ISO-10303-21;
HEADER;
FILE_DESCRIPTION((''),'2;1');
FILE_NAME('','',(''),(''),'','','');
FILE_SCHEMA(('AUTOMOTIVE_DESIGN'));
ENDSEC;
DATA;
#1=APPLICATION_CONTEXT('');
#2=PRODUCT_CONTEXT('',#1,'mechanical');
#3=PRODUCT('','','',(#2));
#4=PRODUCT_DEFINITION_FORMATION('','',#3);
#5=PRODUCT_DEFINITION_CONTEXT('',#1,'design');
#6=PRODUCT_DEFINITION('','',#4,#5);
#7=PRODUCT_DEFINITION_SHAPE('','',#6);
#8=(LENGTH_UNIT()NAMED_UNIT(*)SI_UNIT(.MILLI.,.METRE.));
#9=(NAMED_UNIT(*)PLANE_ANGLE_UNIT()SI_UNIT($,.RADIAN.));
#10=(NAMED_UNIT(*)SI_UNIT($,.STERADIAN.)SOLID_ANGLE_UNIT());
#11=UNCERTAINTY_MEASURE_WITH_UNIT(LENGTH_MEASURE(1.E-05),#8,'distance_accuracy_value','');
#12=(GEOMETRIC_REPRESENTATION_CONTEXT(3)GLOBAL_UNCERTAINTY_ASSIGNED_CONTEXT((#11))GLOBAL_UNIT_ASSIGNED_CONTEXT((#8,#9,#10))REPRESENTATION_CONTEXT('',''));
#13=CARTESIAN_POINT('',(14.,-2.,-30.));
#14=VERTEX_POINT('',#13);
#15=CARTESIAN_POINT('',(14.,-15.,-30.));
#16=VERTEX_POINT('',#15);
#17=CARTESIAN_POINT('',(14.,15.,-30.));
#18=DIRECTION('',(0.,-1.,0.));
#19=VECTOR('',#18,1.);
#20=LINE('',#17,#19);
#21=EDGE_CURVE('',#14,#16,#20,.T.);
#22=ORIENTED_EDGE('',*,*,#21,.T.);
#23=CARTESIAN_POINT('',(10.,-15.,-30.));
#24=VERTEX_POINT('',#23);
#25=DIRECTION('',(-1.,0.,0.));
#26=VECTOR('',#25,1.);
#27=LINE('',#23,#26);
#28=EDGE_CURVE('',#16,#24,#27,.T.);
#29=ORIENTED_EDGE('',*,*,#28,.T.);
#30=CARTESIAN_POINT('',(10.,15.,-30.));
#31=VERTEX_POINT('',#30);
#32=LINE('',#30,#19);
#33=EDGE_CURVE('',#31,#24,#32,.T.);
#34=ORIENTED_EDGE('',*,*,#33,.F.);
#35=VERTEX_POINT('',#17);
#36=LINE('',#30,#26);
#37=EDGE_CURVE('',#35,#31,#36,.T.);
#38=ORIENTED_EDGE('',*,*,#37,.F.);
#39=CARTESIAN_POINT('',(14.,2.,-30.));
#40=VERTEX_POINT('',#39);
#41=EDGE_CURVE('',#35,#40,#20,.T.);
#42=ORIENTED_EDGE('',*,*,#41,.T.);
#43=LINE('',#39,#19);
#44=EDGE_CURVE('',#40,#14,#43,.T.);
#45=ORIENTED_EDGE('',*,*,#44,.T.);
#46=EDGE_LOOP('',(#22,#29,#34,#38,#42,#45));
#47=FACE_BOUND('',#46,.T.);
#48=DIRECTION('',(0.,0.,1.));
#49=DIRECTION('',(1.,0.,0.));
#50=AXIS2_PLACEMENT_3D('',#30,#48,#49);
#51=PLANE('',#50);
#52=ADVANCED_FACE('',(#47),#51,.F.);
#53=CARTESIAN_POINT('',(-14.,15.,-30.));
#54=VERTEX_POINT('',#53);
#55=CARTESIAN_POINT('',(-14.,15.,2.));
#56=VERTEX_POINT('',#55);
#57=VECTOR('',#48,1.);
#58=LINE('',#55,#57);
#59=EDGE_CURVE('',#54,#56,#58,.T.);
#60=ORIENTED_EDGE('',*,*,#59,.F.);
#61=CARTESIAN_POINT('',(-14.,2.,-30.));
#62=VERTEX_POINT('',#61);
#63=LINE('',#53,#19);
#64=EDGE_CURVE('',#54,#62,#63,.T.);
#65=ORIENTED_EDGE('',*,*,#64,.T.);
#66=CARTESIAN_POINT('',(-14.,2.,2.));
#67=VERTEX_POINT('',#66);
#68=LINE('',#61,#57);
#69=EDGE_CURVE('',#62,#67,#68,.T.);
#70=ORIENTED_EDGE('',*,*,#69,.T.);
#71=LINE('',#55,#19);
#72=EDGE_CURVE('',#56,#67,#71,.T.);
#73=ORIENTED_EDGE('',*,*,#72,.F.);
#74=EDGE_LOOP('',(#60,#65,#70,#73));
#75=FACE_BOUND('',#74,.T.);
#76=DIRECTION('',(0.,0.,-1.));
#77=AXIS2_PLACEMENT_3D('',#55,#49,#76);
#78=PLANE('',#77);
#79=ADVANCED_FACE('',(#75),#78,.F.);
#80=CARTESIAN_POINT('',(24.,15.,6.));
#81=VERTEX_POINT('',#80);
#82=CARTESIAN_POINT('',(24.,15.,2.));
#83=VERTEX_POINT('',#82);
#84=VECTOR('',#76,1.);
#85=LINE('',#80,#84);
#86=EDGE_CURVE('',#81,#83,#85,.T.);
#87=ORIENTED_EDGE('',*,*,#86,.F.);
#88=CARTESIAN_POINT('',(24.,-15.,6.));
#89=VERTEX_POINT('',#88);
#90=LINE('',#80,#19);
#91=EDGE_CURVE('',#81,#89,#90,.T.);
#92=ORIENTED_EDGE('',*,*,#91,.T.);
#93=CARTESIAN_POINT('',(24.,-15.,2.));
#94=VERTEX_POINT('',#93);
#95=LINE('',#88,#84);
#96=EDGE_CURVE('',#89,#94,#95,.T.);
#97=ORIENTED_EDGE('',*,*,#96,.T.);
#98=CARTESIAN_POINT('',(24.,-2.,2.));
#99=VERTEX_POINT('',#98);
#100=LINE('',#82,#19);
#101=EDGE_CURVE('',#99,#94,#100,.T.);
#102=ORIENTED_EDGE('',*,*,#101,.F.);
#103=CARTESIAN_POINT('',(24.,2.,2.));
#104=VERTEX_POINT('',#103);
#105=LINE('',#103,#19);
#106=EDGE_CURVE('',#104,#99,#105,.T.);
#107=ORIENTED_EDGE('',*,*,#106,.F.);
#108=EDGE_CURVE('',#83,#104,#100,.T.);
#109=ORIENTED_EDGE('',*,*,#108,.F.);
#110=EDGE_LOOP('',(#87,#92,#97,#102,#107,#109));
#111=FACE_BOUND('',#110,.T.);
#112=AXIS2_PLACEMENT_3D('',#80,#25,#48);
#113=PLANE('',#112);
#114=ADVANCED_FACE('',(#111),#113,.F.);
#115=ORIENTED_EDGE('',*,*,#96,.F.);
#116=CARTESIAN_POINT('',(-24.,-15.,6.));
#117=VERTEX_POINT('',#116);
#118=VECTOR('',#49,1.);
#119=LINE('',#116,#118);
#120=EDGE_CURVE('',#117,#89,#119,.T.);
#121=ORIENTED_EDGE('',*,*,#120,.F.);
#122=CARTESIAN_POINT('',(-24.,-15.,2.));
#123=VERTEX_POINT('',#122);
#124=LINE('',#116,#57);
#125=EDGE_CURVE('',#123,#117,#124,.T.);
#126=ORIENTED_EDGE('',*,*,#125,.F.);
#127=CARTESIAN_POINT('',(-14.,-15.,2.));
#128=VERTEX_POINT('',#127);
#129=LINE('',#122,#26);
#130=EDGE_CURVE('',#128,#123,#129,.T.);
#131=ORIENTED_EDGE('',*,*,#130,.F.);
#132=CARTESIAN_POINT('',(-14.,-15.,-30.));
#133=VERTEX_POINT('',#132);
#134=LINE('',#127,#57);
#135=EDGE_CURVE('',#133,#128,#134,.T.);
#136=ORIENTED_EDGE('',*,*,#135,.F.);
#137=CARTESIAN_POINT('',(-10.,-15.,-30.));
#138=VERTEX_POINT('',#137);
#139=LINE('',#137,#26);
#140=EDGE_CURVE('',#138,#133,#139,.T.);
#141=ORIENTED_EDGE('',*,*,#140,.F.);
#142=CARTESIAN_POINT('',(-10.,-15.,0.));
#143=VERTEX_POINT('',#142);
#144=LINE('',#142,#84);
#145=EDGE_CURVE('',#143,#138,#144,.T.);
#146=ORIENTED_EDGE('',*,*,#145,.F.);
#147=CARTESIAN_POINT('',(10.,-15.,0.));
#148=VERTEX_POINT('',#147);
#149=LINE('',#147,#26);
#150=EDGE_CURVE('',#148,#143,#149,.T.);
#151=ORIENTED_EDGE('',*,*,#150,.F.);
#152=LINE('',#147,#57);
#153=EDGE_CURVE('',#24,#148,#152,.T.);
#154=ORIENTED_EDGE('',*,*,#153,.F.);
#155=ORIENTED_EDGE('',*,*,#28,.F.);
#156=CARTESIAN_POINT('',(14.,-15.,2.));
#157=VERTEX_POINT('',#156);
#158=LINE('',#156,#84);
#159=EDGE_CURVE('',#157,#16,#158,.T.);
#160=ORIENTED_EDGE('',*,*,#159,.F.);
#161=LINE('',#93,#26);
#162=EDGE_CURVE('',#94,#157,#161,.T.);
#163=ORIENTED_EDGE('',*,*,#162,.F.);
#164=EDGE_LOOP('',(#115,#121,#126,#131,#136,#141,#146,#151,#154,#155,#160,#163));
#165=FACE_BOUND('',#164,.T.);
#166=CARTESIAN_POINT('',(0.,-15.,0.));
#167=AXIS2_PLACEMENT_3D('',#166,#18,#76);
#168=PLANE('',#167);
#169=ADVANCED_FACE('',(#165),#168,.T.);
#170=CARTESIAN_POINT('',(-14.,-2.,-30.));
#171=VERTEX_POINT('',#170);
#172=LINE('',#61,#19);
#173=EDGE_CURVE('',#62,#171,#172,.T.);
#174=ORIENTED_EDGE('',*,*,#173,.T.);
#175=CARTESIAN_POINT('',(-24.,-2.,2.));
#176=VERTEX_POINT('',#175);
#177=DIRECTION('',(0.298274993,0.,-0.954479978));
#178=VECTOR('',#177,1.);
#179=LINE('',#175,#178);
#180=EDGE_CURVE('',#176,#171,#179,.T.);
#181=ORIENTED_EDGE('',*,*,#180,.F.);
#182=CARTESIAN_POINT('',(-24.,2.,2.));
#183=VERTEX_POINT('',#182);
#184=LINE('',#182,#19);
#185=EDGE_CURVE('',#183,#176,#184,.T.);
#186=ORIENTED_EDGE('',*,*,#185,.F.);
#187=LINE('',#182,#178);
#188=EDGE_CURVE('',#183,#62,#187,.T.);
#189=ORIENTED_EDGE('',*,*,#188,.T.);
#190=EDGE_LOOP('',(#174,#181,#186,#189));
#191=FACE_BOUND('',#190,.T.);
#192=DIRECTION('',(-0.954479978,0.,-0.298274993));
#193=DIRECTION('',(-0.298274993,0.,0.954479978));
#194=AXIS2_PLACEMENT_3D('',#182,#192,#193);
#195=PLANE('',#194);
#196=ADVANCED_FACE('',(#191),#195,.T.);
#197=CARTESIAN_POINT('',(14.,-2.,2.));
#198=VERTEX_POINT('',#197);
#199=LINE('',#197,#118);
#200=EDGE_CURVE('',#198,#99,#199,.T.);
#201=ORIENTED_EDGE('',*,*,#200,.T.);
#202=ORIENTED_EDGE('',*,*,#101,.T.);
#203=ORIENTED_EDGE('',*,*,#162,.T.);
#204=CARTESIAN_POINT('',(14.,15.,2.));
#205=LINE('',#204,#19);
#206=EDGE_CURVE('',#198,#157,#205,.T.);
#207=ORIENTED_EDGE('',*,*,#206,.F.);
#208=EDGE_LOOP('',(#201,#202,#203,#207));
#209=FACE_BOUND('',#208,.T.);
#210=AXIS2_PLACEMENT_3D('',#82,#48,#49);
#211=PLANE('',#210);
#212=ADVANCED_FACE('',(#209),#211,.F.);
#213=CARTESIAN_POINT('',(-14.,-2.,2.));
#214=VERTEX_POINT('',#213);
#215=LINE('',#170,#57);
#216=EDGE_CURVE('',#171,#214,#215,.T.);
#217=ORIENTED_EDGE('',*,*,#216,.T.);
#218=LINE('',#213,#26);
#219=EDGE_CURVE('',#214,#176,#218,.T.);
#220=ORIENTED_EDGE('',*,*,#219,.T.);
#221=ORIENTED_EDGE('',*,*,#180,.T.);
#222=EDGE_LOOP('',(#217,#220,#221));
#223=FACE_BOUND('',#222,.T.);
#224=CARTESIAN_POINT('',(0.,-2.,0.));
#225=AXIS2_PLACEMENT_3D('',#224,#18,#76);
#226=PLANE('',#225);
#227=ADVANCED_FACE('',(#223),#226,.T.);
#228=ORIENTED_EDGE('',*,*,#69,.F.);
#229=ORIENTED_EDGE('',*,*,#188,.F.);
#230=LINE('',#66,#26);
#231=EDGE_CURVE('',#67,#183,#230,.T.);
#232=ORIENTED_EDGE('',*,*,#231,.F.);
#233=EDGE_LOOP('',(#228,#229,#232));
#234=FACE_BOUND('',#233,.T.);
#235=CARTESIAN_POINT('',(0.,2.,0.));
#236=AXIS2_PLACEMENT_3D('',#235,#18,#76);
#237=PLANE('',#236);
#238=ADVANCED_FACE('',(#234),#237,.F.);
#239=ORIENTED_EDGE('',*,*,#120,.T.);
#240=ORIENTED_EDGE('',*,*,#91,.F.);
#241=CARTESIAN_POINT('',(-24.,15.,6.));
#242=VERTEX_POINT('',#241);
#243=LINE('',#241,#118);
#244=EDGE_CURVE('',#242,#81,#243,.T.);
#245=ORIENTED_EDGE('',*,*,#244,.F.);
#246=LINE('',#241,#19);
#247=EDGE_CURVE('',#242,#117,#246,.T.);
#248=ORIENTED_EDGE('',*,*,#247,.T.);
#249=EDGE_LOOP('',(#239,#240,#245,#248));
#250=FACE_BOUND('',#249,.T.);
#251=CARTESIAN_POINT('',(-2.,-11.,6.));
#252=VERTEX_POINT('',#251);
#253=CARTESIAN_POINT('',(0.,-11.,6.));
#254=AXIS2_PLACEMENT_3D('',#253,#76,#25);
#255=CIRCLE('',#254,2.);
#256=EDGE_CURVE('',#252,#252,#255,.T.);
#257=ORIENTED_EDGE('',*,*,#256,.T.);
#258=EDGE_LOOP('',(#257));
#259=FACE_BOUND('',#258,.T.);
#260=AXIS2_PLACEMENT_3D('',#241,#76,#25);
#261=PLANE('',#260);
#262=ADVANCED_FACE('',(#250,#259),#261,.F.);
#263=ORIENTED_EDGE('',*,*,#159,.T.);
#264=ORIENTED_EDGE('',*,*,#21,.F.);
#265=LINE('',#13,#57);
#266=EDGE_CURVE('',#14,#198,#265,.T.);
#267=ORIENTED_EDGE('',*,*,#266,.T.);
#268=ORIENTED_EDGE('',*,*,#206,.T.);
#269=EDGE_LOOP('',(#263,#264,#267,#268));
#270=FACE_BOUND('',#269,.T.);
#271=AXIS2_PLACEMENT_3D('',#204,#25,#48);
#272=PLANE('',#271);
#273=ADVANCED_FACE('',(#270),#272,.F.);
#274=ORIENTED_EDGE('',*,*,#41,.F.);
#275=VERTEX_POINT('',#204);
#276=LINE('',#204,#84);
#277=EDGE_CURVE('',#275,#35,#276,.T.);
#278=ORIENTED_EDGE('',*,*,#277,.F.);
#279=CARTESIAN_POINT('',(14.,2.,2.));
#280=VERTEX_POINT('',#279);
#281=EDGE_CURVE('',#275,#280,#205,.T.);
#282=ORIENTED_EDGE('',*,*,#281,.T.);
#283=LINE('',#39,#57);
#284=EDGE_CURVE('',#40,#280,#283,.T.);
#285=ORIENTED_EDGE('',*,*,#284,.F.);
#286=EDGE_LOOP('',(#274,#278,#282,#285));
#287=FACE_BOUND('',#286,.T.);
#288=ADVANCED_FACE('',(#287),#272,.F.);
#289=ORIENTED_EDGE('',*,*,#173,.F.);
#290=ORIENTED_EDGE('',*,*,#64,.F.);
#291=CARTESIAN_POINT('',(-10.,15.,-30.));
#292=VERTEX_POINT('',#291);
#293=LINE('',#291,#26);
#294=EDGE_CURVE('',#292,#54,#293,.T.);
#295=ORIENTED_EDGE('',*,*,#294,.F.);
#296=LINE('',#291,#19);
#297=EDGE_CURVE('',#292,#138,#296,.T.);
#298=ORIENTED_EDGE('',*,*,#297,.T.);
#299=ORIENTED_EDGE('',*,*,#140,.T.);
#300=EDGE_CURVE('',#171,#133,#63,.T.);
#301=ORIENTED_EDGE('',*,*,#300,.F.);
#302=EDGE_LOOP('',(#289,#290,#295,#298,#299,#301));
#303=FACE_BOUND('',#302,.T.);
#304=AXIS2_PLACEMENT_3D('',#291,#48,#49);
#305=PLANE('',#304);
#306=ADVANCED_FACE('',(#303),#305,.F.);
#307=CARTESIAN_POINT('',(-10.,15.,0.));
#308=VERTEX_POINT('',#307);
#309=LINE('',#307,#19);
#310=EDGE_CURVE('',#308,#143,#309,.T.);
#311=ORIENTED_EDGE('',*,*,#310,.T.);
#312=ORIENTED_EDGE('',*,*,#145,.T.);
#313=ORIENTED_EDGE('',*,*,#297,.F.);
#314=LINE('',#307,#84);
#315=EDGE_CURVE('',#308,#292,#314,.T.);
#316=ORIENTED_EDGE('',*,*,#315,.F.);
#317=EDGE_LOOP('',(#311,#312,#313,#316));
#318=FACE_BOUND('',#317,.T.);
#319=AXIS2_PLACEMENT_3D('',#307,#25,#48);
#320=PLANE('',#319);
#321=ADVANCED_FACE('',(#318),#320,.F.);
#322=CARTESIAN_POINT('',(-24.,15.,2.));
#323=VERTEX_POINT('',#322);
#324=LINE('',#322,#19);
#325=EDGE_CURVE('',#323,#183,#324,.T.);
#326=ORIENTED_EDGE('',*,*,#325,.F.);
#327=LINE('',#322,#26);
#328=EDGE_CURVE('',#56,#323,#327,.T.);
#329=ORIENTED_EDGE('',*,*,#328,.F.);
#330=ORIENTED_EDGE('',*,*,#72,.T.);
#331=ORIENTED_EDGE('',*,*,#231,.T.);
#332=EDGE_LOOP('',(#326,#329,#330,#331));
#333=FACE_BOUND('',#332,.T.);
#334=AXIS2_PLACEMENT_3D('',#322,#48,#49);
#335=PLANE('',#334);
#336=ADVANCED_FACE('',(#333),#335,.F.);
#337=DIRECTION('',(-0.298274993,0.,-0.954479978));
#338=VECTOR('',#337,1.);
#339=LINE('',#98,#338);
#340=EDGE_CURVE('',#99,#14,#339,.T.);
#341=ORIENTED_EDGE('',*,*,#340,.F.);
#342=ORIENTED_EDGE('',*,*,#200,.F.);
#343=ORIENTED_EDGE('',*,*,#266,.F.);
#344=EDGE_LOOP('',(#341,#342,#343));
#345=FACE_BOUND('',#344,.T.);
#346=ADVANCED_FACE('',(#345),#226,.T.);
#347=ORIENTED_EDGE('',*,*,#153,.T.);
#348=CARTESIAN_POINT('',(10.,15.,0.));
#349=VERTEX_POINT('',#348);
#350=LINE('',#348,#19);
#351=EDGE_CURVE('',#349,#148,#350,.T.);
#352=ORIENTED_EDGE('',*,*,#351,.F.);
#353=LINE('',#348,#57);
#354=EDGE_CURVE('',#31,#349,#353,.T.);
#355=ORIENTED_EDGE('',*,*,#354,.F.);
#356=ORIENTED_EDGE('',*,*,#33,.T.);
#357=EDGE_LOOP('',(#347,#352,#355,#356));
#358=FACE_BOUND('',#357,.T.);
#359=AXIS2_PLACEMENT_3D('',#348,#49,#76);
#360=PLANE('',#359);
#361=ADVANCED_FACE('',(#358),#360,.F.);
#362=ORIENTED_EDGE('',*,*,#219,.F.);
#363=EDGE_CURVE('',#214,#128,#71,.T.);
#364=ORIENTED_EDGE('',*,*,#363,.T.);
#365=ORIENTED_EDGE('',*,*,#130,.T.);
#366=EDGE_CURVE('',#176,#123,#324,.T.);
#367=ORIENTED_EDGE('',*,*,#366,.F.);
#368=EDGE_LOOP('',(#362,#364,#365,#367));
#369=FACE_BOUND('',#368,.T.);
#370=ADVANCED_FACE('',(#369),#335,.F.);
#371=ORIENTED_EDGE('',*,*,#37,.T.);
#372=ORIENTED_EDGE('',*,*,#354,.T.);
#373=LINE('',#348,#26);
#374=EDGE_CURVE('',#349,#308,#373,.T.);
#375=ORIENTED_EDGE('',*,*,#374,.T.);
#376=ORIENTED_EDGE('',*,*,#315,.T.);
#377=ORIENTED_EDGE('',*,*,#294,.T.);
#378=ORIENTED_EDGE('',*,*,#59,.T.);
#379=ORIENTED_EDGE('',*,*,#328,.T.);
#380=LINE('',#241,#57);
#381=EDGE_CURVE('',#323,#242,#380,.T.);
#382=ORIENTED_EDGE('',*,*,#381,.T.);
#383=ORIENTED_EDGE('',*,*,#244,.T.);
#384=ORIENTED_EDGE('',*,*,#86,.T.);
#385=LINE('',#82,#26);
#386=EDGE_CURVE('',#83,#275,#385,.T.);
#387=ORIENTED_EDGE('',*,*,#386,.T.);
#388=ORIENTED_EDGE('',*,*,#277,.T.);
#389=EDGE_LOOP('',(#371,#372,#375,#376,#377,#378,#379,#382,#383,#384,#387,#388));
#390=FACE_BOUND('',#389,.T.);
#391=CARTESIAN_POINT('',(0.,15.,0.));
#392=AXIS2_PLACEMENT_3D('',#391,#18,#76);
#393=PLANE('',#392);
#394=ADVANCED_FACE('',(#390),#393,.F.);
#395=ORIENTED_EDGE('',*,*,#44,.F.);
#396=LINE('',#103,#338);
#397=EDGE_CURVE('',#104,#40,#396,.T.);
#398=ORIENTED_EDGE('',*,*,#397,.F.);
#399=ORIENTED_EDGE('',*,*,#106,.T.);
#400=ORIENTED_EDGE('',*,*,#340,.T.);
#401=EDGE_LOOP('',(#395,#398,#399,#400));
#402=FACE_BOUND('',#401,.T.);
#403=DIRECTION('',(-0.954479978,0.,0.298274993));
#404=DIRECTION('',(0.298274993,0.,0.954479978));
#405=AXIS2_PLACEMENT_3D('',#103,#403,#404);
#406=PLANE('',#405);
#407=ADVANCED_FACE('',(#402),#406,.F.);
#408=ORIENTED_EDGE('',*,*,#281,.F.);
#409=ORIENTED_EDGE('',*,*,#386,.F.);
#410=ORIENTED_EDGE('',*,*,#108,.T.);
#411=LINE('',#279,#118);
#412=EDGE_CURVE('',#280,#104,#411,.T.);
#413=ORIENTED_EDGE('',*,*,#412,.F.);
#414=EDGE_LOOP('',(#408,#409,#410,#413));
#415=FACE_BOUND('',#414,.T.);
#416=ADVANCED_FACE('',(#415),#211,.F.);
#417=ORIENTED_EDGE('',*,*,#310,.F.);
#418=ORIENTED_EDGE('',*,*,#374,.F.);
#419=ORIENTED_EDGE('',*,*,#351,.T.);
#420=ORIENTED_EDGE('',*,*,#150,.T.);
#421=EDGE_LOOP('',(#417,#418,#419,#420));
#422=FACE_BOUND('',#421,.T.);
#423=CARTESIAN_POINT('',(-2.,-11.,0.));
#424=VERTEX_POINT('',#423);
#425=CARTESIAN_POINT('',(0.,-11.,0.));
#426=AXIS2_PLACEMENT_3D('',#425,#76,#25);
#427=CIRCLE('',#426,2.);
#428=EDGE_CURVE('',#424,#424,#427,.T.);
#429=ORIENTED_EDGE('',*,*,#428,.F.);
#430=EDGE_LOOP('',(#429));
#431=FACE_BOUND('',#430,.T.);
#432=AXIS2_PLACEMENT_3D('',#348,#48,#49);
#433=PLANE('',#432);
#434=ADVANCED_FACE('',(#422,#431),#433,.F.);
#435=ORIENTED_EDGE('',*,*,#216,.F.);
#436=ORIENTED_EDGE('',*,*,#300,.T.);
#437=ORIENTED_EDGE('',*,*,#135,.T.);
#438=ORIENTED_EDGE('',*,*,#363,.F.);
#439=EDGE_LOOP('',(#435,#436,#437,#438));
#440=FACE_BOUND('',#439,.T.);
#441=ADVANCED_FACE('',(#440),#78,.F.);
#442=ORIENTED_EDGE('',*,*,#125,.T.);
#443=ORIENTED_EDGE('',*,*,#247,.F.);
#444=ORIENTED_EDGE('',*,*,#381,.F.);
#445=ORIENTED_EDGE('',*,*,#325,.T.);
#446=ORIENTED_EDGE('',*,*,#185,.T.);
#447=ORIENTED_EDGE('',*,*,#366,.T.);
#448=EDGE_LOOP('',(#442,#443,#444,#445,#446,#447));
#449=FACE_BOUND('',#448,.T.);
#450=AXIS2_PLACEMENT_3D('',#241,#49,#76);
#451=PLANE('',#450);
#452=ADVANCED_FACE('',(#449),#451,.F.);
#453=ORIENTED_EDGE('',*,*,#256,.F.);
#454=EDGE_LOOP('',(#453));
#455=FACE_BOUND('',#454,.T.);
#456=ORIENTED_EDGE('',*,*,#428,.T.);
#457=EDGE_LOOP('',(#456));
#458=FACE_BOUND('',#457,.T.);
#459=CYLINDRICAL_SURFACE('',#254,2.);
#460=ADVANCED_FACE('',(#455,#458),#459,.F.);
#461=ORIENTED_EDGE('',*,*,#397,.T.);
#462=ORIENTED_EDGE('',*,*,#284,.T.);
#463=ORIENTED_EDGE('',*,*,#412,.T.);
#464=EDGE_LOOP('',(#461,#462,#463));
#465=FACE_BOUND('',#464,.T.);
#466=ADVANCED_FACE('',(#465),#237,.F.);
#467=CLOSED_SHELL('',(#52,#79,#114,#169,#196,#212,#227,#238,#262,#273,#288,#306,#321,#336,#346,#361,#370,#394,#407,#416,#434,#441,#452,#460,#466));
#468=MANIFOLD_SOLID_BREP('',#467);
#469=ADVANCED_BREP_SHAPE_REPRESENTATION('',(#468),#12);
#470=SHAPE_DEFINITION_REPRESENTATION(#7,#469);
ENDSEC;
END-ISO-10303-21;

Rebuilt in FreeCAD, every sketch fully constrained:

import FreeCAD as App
import Part
import Sketcher
Q = App.Units.Quantity


def add_polygon(sketch, points):
    """Adds a closed chain of lines whose ends are joined by coincident constraints."""
    first, n = sketch.GeometryCount, len(points)
    for a, b in zip(points, points[1:] + points[:1]):
        sketch.addGeometry(Part.LineSegment(App.Vector(*a, 0), App.Vector(*b, 0)), False)
    for i in range(n):
        sketch.addConstraint(Sketcher.Constraint("Coincident", first + i, 2, first + (i + 1) % n, 1))

doc = App.newDocument("Part")
body = doc.addObject("PartDesign::Body", "Body")

sketch1 = body.newObject("Sketcher::SketchObject", "Sketch")
sketch1.AttachmentSupport = (doc.getObject("XZ_Plane"), [""])
sketch1.MapMode = "FlatFace"
add_polygon(sketch1, [(10, 0), (-10, 0), (-10, -30), (-14, -30), (-14, 2), (-24, 2), (-24, 6), (24, 6), (24, 2), (14, 2), (14, -30), (10, -30)])
sketch1.addConstraint([
    Sketcher.Constraint("Horizontal", 0),
    Sketcher.Constraint("Vertical", 1),
    Sketcher.Constraint("Horizontal", 2),
    Sketcher.Constraint("Vertical", 3),
    Sketcher.Constraint("Horizontal", 4),
    Sketcher.Constraint("Vertical", 5),
    Sketcher.Constraint("Horizontal", 6),
    Sketcher.Constraint("Vertical", 7),
    Sketcher.Constraint("Horizontal", 8),
    Sketcher.Constraint("Vertical", 9),
    Sketcher.Constraint("Horizontal", 10),
    Sketcher.Constraint("Vertical", 11),
    Sketcher.Constraint("Symmetric", 0, 2, 11, 2, -1, 1),
    Sketcher.Constraint("Symmetric", 4, 2, 7, 2, -2),
    Sketcher.Constraint("Symmetric", 2, 2, 9, 2, -2),
    Sketcher.Constraint("Equal", 10, 5),
    Sketcher.Constraint("DistanceX", 0, 2, 0, 1, Q("20 mm")),
    Sketcher.Constraint("DistanceX", 2, 2, 2, 1, Q("4 mm")),
    Sketcher.Constraint("DistanceX", 4, 2, 4, 1, Q("10 mm")),
    Sketcher.Constraint("DistanceY", 1, 2, 1, 1, Q("30 mm")),
    Sketcher.Constraint("DistanceY", 3, 1, 3, 2, Q("32 mm")),
])
pad1 = body.newObject("PartDesign::Pad", "Pad")
pad1.Profile = sketch1
pad1.Length = 30
pad1.Midplane = True

sketch2 = body.newObject("Sketcher::SketchObject", "Sketch001")
sketch2.AttachmentSupport = (doc.getObject("XZ_Plane"), [""])
sketch2.MapMode = "FlatFace"
add_polygon(sketch2, [(14, -30), (14, 2), (24, 2)])
sketch2.addConstraint([
    Sketcher.Constraint("Vertical", 0),
    Sketcher.Constraint("Horizontal", 1),
    Sketcher.Constraint("DistanceX", 1, 1, 1, 2, Q("10 mm")),
    Sketcher.Constraint("DistanceY", 0, 1, 0, 2, Q("32 mm")),
    Sketcher.Constraint("DistanceX", -1, 1, 0, 2, Q("14 mm")),
    Sketcher.Constraint("DistanceY", -1, 1, 0, 2, Q("2 mm")),
])
pad2 = body.newObject("PartDesign::Pad", "Pad001")
pad2.Profile = sketch2
pad2.Length = 4
pad2.Midplane = True
doc.recompute()

mirrored = body.newObject("PartDesign::Mirrored", "Mirrored")
mirrored.Originals = [pad2]
mirrored.MirrorPlane = (doc.getObject("YZ_Plane"), [""])
body.Tip = mirrored

sketch3 = body.newObject("Sketcher::SketchObject", "Sketch002")
sketch3.AttachmentSupport = (doc.getObject("XY_Plane"), [""])
sketch3.MapMode = "FlatFace"
sketch3.addGeometry(Part.Circle(App.Vector(0, -11, 0), App.Vector(0, 0, 1), 2), False)
sketch3.addConstraint([
    Sketcher.Constraint("PointOnObject", 0, 3, -2),
    Sketcher.Constraint("Diameter", 0, Q("4 mm")),
    Sketcher.Constraint("DistanceY", 0, 3, -1, 1, Q("11 mm")),
])
pocket1 = body.newObject("PartDesign::Pocket", "Pocket")
pocket1.Profile = sketch3
pocket1.Type = "ThroughAll"
pocket1.Reversed = True

doc.recompute()
